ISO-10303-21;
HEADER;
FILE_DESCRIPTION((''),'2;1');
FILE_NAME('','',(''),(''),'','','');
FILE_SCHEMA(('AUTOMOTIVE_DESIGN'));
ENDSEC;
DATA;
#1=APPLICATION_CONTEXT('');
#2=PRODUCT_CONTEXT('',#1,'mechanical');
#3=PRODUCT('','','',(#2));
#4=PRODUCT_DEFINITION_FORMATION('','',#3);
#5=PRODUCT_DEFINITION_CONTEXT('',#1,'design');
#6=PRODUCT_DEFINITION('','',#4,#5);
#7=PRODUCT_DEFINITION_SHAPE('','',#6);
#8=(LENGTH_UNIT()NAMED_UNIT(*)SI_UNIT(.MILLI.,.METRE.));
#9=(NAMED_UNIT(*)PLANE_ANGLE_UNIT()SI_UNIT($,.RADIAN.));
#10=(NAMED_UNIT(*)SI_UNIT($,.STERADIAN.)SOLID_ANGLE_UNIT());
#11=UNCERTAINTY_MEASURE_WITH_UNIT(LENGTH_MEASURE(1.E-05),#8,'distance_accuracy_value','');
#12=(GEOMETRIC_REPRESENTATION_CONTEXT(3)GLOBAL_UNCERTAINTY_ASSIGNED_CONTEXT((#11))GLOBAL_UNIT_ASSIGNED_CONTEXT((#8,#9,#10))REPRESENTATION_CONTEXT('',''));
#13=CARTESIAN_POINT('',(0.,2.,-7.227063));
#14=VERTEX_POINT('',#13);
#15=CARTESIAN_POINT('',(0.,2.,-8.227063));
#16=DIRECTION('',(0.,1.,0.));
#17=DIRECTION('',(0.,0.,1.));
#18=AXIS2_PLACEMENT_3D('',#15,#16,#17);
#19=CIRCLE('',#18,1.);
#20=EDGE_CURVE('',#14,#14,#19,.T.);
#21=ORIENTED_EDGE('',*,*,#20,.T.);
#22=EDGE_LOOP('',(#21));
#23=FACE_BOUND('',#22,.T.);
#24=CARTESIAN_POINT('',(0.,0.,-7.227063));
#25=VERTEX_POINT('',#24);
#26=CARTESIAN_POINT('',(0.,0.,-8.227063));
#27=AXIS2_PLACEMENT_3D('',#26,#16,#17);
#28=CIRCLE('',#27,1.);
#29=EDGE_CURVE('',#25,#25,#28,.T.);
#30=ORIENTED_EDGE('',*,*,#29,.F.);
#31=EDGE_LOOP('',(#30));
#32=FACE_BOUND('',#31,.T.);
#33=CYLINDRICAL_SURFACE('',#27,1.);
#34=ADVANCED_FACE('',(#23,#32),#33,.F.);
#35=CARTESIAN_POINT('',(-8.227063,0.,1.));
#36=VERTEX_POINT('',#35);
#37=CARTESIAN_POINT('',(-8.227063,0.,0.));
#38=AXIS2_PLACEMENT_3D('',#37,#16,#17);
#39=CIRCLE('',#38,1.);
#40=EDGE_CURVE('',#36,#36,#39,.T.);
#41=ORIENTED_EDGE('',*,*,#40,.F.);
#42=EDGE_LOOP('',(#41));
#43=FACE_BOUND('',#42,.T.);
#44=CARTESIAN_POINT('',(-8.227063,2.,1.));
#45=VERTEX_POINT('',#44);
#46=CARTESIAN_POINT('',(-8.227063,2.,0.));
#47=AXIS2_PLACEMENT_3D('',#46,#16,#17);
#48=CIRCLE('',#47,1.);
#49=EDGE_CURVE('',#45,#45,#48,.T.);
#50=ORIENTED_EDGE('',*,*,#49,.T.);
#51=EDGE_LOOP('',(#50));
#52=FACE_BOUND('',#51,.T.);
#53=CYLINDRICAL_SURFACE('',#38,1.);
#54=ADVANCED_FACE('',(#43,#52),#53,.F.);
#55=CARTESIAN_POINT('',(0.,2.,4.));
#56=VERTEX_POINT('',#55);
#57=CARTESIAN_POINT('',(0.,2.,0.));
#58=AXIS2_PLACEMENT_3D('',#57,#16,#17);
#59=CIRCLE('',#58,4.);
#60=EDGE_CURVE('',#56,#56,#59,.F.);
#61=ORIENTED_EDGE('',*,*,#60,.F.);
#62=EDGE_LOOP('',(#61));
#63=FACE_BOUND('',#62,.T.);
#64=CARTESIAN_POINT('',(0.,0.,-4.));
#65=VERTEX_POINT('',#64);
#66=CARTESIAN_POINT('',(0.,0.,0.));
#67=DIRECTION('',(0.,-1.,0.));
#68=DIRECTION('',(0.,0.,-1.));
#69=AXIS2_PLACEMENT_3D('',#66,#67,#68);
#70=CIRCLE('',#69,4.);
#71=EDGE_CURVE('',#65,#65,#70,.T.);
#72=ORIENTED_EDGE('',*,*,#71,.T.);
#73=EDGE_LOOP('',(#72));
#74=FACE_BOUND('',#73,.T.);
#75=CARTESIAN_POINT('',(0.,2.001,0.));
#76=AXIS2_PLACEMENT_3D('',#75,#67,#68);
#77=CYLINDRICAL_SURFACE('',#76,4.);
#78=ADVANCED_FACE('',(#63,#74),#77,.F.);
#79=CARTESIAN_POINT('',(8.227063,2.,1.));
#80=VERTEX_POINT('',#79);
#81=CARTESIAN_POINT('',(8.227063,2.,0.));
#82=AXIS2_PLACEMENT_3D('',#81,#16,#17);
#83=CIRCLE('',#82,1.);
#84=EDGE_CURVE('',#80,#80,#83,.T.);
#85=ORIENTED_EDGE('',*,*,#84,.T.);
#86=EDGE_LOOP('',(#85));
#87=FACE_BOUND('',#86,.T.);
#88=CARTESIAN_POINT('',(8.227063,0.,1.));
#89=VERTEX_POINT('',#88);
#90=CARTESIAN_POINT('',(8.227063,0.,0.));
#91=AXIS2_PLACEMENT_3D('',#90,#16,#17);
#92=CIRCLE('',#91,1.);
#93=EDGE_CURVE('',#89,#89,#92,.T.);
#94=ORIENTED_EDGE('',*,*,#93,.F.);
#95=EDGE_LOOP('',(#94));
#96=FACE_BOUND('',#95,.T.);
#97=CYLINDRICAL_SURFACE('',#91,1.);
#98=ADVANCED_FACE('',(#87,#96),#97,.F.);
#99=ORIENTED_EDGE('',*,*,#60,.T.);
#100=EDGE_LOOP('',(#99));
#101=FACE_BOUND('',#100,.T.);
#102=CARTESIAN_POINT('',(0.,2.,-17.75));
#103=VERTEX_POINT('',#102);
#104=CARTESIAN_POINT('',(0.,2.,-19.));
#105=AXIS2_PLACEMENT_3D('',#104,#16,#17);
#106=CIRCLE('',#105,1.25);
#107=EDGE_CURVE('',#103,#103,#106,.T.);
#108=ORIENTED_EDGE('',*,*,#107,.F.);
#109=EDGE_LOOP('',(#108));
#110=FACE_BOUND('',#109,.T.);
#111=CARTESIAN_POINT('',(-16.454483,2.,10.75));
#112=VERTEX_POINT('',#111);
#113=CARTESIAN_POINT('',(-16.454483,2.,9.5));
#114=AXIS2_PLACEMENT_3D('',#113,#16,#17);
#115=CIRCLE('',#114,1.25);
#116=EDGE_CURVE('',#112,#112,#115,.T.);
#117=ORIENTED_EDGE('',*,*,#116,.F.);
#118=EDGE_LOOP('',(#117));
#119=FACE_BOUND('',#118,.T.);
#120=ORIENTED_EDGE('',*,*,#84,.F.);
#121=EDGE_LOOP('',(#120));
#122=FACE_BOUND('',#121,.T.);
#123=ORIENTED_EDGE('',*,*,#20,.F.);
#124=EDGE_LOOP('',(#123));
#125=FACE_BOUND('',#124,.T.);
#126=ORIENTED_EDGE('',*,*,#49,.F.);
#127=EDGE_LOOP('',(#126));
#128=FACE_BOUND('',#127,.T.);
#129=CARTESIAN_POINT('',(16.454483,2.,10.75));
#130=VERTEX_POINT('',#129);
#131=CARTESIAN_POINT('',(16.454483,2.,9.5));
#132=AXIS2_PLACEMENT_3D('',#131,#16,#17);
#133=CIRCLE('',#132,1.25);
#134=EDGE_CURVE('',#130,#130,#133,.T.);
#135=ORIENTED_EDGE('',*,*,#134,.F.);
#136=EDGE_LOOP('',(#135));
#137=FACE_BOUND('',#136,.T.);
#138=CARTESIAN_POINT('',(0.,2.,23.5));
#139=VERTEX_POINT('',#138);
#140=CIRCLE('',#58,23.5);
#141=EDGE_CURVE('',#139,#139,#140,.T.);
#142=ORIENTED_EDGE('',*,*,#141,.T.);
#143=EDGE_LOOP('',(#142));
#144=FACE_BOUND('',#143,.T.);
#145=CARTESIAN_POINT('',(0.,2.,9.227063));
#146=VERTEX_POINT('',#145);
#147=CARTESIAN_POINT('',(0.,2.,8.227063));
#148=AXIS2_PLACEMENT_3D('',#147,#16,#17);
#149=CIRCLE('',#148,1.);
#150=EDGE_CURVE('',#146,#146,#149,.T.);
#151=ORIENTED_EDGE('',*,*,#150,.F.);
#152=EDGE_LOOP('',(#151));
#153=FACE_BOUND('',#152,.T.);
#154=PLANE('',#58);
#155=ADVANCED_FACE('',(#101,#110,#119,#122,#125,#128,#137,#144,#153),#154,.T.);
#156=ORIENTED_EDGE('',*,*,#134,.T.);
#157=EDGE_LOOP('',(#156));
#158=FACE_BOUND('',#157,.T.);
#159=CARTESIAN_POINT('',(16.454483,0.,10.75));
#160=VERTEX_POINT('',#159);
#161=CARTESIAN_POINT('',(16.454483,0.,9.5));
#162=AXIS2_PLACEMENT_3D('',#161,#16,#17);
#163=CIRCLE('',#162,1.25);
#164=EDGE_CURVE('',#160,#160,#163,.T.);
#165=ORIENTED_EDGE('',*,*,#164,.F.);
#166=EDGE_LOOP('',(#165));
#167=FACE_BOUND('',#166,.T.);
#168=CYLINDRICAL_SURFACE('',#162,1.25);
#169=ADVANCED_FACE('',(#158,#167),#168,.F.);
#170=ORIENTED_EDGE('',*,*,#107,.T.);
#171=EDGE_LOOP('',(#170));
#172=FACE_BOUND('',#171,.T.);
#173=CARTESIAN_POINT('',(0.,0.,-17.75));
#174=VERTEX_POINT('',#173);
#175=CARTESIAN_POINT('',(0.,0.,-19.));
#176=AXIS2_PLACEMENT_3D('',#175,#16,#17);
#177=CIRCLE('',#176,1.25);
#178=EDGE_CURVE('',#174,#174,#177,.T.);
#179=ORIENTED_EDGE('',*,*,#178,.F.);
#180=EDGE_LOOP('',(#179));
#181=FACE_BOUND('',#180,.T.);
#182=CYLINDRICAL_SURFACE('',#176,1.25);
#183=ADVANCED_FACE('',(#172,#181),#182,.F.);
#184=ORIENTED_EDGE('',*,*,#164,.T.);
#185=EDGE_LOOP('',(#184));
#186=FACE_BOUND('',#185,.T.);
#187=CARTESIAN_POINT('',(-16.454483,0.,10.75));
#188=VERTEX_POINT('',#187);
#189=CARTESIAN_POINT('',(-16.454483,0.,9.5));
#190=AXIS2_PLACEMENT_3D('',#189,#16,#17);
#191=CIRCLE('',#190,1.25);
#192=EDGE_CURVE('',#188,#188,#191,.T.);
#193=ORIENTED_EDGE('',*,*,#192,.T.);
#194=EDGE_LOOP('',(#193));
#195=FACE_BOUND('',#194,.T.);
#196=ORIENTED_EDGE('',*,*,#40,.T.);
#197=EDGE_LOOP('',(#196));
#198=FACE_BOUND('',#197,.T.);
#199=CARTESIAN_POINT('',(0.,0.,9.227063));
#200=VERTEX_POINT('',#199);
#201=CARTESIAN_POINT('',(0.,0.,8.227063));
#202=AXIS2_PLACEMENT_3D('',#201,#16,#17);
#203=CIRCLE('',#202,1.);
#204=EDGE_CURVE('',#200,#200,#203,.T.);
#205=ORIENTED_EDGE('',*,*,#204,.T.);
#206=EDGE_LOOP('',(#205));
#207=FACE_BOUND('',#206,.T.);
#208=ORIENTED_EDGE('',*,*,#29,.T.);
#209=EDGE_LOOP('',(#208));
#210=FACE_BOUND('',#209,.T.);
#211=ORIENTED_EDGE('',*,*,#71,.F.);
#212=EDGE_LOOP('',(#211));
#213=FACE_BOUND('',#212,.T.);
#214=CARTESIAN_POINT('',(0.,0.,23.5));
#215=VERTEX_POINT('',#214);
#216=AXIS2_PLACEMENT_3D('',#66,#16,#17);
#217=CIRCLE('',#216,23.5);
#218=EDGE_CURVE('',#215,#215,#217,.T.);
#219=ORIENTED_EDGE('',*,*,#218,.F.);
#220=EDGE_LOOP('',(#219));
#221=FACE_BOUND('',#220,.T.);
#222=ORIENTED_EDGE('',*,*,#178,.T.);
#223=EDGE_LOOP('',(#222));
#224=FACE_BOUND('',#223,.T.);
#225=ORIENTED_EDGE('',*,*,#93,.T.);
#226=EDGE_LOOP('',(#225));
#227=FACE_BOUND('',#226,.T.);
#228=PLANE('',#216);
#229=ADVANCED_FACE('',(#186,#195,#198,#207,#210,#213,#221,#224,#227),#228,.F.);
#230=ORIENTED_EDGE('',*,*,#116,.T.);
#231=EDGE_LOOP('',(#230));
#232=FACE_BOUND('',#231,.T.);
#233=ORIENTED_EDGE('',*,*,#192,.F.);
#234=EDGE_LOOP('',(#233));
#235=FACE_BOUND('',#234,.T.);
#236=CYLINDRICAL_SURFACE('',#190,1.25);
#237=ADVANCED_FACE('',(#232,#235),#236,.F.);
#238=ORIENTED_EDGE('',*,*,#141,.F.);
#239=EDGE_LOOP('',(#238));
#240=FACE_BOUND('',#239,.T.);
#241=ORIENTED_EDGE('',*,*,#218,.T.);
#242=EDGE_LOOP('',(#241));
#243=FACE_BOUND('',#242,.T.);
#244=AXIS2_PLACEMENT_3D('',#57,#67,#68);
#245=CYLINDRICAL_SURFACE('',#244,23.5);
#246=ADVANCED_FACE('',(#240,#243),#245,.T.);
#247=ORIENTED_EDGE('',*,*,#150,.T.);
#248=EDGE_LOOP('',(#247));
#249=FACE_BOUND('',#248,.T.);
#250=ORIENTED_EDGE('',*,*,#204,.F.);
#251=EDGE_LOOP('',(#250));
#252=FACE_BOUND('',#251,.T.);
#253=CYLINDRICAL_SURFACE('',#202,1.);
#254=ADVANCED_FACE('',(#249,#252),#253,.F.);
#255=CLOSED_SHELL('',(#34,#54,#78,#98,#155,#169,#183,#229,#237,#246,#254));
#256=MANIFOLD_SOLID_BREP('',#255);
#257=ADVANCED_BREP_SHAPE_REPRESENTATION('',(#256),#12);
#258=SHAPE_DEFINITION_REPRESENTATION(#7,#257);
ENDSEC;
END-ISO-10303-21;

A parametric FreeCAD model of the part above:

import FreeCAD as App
import Part
import Sketcher

doc = App.newDocument("Part")
body = doc.addObject("PartDesign::Body", "Body")

# Sketch on XZ plane
sketch1 = doc.addObject("Sketcher::SketchObject", "Sketch")
body.addObject(sketch1)
sketch1.AttachmentSupport = (doc.XZ_Plane, [""])
sketch1.MapMode = "FlatFace"
sketch1.addGeometry(Part.Circle(App.Vector(0, 0, 0), App.Vector(0, 0, 1), 24), False)
sketch1.addConstraint(Sketcher.Constraint("Coincident", 0, 3, -1, 1))
sketch1.addConstraint(Sketcher.Constraint("Diameter", 0, 47.0))
pad1 = doc.addObject("PartDesign::Pad", "Pad")
body.addObject(pad1)
pad1.Profile = sketch1
pad1.Length = 2
pad1.Reversed = True

# Sketch on XZ plane
sketch2 = doc.addObject("Sketcher::SketchObject", "Sketch001")
body.addObject(sketch2)
sketch2.AttachmentSupport = (doc.XZ_Plane, [""])
sketch2.MapMode = "FlatFace"
sketch2.AttachmentOffset = App.Placement(App.Vector(0, 0, -2), App.Rotation())
sketch2.addGeometry(Part.Circle(App.Vector(0, -8.2, 0), App.Vector(0, 0, 1), 1), False)
sketch2.addGeometry(Part.Circle(App.Vector(8.2, 0, 0), App.Vector(0, 0, 1), 1), False)
sketch2.addGeometry(Part.Circle(App.Vector(0, 8.2, 0), App.Vector(0, 0, 1), 1), False)
sketch2.addGeometry(Part.Circle(App.Vector(-8.2, 0, 0), App.Vector(0, 0, 1), 1), False)
sketch2.addGeometry(Part.Circle(App.Vector(0, -19, 0), App.Vector(0, 0, 1), 1.2), False)
sketch2.addGeometry(Part.Circle(App.Vector(16.5, 9.5, 0), App.Vector(0, 0, 1), 1.2), False)
sketch2.addGeometry(Part.Circle(App.Vector(-16.5, 9.5, 0), App.Vector(0, 0, 1), 1.2), False)
sketch2.addConstraint(Sketcher.Constraint("Equal", 0, 1))
sketch2.addConstraint(Sketcher.Constraint("Equal", 1, 2))
sketch2.addConstraint(Sketcher.Constraint("Equal", 2, 3))
sketch2.addConstraint(Sketcher.Constraint("Equal", 4, 5))
sketch2.addConstraint(Sketcher.Constraint("Equal", 5, 6))
sketch2.addConstraint(Sketcher.Constraint("Symmetric", 0, 3, 2, 3, -1, 1))
sketch2.addConstraint(Sketcher.Constraint("Symmetric", 1, 3, 3, 3, -1, 1))
sketch2.addConstraint(Sketcher.Constraint("Symmetric", 5, 3, 6, 3, -2))
sketch2.addConstraint(Sketcher.Constraint("PointOnObject", 0, 3, -2))
sketch2.addConstraint(Sketcher.Constraint("PointOnObject", 1, 3, -1))
sketch2.addConstraint(Sketcher.Constraint("PointOnObject", 4, 3, -2))
sketch2.addConstraint(Sketcher.Constraint("Diameter", 0, 2.0))
sketch2.addConstraint(Sketcher.Constraint("Diameter", 4, 2.5))
sketch2.addConstraint(Sketcher.Constraint("DistanceY", 4, 3, -1, 1, 19.0))
sketch2.addConstraint(Sketcher.Constraint("DistanceY", -1, 1, 5, 3, 9.5))
sketch2.addConstraint(Sketcher.Constraint("DistanceX", 1, 3, 5, 3, 8.22742))
sketch2.addConstraint(Sketcher.Constraint("DistanceY", 0, 3, -1, 1, 8.227063))
sketch2.addConstraint(Sketcher.Constraint("DistanceX", -1, 1, 1, 3, 8.227063))
pocket1 = doc.addObject("PartDesign::Pocket", "Pocket")
body.addObject(pocket1)
pocket1.Profile = sketch2
pocket1.Type = "ThroughAll"
pocket1.Reversed = True

# Sketch on XZ plane
sketch3 = doc.addObject("Sketcher::SketchObject", "Sketch002")
body.addObject(sketch3)
sketch3.AttachmentSupport = (doc.XZ_Plane, [""])
sketch3.MapMode = "FlatFace"
sketch3.addGeometry(Part.Circle(App.Vector(0, 0, 0), App.Vector(0, 0, 1), 4), False)
sketch3.addConstraint(Sketcher.Constraint("Coincident", 0, 3, -1, 1))
sketch3.addConstraint(Sketcher.Constraint("Diameter", 0, 8.0))
pocket2 = doc.addObject("PartDesign::Pocket", "Pocket001")
body.addObject(pocket2)
pocket2.Profile = sketch3
pocket2.Type = "UpToFirst"

doc.recompute()
